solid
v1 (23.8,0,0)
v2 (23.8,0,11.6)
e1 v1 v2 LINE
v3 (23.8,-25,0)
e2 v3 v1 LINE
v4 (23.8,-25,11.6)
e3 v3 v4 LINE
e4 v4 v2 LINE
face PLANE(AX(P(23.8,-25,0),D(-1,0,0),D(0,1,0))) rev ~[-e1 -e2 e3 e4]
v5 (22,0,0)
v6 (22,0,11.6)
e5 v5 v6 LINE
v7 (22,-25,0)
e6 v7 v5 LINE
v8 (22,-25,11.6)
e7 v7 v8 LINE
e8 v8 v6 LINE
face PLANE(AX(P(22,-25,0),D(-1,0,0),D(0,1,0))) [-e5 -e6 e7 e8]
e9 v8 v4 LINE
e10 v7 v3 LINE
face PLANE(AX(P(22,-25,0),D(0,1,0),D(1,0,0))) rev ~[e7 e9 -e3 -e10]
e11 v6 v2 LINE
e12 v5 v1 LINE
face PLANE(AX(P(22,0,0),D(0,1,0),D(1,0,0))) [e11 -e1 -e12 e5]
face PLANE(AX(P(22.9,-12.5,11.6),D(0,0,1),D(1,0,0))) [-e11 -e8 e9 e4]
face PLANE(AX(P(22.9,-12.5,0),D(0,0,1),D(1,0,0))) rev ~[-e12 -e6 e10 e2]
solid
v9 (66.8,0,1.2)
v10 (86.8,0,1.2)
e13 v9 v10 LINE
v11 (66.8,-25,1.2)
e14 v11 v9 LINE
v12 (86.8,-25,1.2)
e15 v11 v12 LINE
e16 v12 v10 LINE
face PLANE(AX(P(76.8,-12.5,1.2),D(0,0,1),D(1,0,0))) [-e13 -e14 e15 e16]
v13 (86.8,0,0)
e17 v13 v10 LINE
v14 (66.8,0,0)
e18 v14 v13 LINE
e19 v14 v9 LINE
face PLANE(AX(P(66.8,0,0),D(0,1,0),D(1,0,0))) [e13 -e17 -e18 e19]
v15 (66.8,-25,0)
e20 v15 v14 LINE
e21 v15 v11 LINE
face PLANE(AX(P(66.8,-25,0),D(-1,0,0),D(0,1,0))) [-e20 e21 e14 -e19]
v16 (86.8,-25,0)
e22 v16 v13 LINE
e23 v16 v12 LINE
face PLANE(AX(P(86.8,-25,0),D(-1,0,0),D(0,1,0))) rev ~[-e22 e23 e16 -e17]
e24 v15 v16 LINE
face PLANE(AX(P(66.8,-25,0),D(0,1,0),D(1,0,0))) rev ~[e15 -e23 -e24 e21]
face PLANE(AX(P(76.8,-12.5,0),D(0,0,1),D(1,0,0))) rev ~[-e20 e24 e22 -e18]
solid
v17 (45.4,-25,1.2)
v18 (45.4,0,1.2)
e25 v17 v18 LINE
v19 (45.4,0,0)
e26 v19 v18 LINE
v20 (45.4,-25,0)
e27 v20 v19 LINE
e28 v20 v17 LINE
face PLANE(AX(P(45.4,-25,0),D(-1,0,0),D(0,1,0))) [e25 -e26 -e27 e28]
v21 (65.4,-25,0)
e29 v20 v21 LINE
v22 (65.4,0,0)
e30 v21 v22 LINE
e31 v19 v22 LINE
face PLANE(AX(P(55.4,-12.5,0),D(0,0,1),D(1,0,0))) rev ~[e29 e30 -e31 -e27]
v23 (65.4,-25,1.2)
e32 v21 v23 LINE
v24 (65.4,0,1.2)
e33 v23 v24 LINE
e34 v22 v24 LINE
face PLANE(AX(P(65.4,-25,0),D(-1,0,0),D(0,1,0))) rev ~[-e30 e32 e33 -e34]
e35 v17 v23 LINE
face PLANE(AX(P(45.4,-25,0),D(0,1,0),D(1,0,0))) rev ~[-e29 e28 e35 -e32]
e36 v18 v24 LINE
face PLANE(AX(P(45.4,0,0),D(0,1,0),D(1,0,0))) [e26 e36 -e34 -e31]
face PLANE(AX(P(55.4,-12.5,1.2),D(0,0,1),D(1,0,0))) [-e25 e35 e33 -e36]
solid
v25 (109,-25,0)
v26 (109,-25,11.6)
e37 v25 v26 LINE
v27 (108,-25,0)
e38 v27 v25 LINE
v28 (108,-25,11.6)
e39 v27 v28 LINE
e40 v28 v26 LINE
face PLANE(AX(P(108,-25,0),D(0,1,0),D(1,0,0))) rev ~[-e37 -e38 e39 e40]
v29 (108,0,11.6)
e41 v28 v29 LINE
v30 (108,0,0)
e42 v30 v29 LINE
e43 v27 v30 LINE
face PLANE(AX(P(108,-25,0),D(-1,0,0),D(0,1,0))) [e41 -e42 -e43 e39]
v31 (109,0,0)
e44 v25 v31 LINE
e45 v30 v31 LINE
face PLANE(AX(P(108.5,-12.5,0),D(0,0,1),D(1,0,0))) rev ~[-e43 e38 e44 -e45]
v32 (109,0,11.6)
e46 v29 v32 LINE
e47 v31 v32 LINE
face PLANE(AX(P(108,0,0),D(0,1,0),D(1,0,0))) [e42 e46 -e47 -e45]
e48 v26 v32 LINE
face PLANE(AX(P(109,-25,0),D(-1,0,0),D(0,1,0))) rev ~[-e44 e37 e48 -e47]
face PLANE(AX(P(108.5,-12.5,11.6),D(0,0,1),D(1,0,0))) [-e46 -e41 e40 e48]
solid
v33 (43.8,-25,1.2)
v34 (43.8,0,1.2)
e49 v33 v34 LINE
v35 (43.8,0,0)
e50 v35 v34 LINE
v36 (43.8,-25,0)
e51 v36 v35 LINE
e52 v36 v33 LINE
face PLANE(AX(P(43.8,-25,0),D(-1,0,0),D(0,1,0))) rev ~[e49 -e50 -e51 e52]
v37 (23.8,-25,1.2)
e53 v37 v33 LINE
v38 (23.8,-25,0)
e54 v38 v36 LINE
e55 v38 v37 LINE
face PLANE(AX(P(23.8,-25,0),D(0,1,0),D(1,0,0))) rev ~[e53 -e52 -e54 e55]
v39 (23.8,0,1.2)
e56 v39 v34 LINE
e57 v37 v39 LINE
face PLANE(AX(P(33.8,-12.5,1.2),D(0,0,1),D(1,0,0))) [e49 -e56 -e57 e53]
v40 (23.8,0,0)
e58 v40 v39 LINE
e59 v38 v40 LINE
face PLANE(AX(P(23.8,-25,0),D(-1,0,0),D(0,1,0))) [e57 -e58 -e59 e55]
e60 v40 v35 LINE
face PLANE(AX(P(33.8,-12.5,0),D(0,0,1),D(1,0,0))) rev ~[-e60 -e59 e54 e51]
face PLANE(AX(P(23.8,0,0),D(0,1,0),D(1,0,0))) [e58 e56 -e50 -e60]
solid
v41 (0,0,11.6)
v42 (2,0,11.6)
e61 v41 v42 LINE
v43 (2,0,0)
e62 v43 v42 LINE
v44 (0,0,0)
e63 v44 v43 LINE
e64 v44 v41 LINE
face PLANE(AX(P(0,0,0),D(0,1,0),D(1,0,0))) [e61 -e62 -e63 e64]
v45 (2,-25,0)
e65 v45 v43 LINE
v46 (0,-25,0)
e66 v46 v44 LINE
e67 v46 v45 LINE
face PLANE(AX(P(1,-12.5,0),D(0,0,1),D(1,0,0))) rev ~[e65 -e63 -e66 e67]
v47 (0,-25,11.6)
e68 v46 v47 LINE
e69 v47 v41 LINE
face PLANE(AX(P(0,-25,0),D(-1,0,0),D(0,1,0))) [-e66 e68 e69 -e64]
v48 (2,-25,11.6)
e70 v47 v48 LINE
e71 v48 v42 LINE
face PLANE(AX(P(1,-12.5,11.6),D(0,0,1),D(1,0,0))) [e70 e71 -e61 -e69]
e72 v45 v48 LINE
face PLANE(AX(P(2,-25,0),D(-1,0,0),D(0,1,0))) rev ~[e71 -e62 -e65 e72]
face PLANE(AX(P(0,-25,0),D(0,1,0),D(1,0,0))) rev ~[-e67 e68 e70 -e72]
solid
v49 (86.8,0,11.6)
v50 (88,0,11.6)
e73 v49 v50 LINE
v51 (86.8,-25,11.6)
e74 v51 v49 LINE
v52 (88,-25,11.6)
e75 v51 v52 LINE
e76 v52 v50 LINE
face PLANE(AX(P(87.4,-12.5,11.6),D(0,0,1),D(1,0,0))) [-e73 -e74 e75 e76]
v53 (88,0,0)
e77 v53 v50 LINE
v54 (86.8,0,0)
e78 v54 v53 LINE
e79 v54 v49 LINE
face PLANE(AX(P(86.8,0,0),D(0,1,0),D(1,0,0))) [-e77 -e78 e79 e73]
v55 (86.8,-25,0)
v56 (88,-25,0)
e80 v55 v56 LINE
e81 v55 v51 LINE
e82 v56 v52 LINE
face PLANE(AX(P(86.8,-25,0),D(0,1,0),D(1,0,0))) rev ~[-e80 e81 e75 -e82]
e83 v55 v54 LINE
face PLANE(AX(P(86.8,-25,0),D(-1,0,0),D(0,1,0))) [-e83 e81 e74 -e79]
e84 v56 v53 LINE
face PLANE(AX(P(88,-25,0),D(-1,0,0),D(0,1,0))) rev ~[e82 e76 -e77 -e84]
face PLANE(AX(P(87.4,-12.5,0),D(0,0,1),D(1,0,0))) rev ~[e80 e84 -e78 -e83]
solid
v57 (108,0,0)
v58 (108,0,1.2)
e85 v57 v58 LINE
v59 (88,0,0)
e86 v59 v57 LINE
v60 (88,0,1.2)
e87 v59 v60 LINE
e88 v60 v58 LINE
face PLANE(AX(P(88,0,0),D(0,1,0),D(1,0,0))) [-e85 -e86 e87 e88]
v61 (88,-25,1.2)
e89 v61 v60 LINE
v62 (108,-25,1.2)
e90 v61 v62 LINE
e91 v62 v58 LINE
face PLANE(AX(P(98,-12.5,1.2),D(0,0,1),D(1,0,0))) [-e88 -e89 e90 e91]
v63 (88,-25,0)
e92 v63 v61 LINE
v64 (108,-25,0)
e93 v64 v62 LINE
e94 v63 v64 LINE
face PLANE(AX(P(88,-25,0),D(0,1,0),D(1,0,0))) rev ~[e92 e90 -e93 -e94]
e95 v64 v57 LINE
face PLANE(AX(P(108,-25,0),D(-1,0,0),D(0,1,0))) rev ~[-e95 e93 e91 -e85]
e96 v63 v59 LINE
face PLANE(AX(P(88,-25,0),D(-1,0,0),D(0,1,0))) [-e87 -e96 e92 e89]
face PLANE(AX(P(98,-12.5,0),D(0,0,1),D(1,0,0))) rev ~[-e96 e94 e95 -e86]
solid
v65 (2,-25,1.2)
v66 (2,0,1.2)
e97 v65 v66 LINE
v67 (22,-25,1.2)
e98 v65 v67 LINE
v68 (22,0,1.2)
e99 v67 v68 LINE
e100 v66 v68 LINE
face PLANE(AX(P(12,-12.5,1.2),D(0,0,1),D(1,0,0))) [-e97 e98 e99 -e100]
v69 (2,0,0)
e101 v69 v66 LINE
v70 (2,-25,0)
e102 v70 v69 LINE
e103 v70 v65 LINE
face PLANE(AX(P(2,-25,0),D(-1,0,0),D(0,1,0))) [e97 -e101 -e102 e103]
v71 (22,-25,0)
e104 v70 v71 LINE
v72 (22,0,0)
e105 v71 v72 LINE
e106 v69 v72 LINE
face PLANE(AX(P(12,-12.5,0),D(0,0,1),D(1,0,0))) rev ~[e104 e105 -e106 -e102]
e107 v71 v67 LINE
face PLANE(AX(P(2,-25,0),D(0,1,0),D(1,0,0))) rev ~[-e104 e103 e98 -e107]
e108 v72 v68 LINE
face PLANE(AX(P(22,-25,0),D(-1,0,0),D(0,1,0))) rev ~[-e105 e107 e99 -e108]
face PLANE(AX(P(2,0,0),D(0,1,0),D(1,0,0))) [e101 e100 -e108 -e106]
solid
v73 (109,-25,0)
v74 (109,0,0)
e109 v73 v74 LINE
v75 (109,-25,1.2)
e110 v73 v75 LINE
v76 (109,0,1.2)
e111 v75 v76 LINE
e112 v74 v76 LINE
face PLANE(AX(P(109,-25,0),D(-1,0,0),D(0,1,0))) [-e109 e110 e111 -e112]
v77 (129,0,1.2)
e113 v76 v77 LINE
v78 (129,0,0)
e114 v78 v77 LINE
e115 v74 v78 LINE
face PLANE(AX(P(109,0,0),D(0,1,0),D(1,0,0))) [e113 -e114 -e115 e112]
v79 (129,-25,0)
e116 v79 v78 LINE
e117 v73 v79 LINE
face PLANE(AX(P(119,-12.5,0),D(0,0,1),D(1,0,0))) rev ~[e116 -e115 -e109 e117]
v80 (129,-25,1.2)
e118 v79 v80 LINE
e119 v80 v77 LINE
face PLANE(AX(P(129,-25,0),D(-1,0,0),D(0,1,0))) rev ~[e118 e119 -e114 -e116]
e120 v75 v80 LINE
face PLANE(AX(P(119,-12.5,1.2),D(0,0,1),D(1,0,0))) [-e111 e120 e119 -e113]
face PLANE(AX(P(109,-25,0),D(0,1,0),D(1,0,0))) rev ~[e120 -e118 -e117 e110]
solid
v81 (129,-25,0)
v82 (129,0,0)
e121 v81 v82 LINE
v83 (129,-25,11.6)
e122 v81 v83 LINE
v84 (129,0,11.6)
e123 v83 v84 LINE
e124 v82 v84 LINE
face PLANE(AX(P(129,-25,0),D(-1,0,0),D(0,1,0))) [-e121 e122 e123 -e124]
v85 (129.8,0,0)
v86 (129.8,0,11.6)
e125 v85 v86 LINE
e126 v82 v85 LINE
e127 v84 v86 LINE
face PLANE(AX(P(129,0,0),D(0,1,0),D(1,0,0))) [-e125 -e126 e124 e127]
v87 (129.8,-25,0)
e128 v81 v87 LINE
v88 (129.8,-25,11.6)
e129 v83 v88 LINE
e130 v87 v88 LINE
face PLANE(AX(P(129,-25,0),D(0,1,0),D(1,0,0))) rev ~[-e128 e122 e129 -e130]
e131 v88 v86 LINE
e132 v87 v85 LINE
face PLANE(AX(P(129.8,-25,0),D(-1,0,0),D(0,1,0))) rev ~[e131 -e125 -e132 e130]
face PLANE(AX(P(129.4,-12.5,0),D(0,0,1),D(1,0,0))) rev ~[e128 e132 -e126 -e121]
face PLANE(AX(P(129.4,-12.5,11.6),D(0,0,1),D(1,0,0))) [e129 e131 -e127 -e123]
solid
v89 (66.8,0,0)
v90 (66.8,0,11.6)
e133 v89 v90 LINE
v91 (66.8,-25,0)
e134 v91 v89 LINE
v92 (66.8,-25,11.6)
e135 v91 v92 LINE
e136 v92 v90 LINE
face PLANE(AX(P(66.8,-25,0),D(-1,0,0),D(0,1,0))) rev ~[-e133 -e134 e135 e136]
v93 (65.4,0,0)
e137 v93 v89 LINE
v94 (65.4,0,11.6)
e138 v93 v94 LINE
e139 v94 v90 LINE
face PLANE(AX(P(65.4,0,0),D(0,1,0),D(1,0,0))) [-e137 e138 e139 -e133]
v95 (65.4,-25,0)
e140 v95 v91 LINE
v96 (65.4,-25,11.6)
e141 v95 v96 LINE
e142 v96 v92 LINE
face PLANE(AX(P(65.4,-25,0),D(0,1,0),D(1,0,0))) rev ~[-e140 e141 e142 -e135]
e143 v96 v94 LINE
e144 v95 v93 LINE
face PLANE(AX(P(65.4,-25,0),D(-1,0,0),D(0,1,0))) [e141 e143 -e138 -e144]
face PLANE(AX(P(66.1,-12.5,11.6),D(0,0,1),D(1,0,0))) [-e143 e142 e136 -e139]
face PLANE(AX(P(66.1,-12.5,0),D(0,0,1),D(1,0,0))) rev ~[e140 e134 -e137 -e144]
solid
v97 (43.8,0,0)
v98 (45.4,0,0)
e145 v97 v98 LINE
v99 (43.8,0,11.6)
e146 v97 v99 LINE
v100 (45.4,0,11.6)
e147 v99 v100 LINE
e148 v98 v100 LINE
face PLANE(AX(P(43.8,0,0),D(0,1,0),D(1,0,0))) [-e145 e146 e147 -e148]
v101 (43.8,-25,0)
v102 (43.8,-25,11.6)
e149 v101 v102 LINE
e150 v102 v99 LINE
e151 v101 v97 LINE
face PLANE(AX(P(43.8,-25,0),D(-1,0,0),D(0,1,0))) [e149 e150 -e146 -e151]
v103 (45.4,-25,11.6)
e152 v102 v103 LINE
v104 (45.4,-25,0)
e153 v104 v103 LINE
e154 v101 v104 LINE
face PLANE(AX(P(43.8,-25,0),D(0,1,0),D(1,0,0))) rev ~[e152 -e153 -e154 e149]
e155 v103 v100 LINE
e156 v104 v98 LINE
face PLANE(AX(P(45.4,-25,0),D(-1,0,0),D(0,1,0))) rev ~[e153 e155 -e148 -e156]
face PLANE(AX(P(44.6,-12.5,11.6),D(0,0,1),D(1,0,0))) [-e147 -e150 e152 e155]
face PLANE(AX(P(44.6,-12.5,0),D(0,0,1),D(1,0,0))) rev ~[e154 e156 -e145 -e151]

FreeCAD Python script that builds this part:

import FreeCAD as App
import Part
import Sketcher
from FreeCAD import Vector

doc = App.newDocument("Part")
body = doc.addObject("PartDesign::Body", "Body")
body.AllowCompound = True

# Sketch on XY plane
sketch1 = doc.addObject("Sketcher::SketchObject", "Sketch")
body.addObject(sketch1)
sketch1.AttachmentSupport = (doc.XY_Plane, [""])
sketch1.MapMode = "FlatFace"
sketch1.addGeometry([
    Part.LineSegment(Vector(0, 0, 0), Vector(0, -25, 0)),  # 0
    Part.LineSegment(Vector(0, -25, 0), Vector(2, -25, 0)),  # 1
    Part.LineSegment(Vector(2, -25, 0), Vector(2, 0, 0)),  # 2
    Part.LineSegment(Vector(2, 0, 0), Vector(0, 0, 0)),  # 3
    Part.LineSegment(Vector(22, 0, 0), Vector(22, -25, 0)),  # 4
    Part.LineSegment(Vector(22, -25, 0), Vector(23.8, -25, 0)),  # 5
    Part.LineSegment(Vector(23.8, -25, 0), Vector(23.8, 0, 0)),  # 6
    Part.LineSegment(Vector(23.8, 0, 0), Vector(22, 0, 0)),  # 7
    Part.LineSegment(Vector(43.8, 0, 0), Vector(43.8, -25, 0)),  # 8
    Part.LineSegment(Vector(43.8, -25, 0), Vector(45.4, -25, 0)),  # 9
    Part.LineSegment(Vector(45.4, -25, 0), Vector(45.4, 0, 0)),  # 10
    Part.LineSegment(Vector(45.4, 0, 0), Vector(43.8, 0, 0)),  # 11
    Part.LineSegment(Vector(65.4, 0, 0), Vector(65.4, -25, 0)),  # 12
    Part.LineSegment(Vector(65.4, -25, 0), Vector(66.8, -25, 0)),  # 13
    Part.LineSegment(Vector(66.8, -25, 0), Vector(66.8, 0, 0)),  # 14
    Part.LineSegment(Vector(66.8, 0, 0), Vector(65.4, 0, 0)),  # 15
    Part.LineSegment(Vector(86.8, 0, 0), Vector(86.8, -25, 0)),  # 16
    Part.LineSegment(Vector(86.8, -25, 0), Vector(88, -25, 0)),  # 17
    Part.LineSegment(Vector(88, -25, 0), Vector(88, 0, 0)),  # 18
    Part.LineSegment(Vector(88, 0, 0), Vector(86.8, 0, 0)),  # 19
    Part.LineSegment(Vector(108, 0, 0), Vector(108, -25, 0)),  # 20
    Part.LineSegment(Vector(108, -25, 0), Vector(109, -25, 0)),  # 21
    Part.LineSegment(Vector(109, -25, 0), Vector(109, 0, 0)),  # 22
    Part.LineSegment(Vector(109, 0, 0), Vector(108, 0, 0)),  # 23
    Part.LineSegment(Vector(129, 0, 0), Vector(129, -25, 0)),  # 24
    Part.LineSegment(Vector(129, -25, 0), Vector(129.8, -25, 0)),  # 25
    Part.LineSegment(Vector(129.8, -25, 0), Vector(129.8, 0, 0)),  # 26
    Part.LineSegment(Vector(129.8, 0, 0), Vector(129, 0, 0)),  # 27
], False)
sketch1.addConstraint([
    Sketcher.Constraint("Coincident", 0, 2, 1, 1),
    Sketcher.Constraint("Coincident", 1, 2, 2, 1),
    Sketcher.Constraint("Coincident", 2, 2, 3, 1),
    Sketcher.Constraint("Coincident", 3, 2, 0, 1),
    Sketcher.Constraint("Coincident", 4, 2, 5, 1),
    Sketcher.Constraint("Coincident", 5, 2, 6, 1),
    Sketcher.Constraint("Coincident", 6, 2, 7, 1),
    Sketcher.Constraint("Coincident", 7, 2, 4, 1),
    Sketcher.Constraint("Coincident", 8, 2, 9, 1),
    Sketcher.Constraint("Coincident", 9, 2, 10, 1),
    Sketcher.Constraint("Coincident", 10, 2, 11, 1),
    Sketcher.Constraint("Coincident", 11, 2, 8, 1),
    Sketcher.Constraint("Coincident", 12, 2, 13, 1),
    Sketcher.Constraint("Coincident", 13, 2, 14, 1),
    Sketcher.Constraint("Coincident", 14, 2, 15, 1),
    Sketcher.Constraint("Coincident", 15, 2, 12, 1),
    Sketcher.Constraint("Coincident", 16, 2, 17, 1),
    Sketcher.Constraint("Coincident", 17, 2, 18, 1),
    Sketcher.Constraint("Coincident", 18, 2, 19, 1),
    Sketcher.Constraint("Coincident", 19, 2, 16, 1),
    Sketcher.Constraint("Coincident", 20, 2, 21, 1),
    Sketcher.Constraint("Coincident", 21, 2, 22, 1),
    Sketcher.Constraint("Coincident", 22, 2, 23, 1),
    Sketcher.Constraint("Coincident", 23, 2, 20, 1),
    Sketcher.Constraint("Coincident", 24, 2, 25, 1),
    Sketcher.Constraint("Coincident", 25, 2, 26, 1),
    Sketcher.Constraint("Coincident", 26, 2, 27, 1),
    Sketcher.Constraint("Coincident", 27, 2, 24, 1),
    Sketcher.Constraint("Vertical", 0),
    Sketcher.Constraint("Horizontal", 1),
    Sketcher.Constraint("Vertical", 2),
    Sketcher.Constraint("Horizontal", 3),
    Sketcher.Constraint("Vertical", 4),
    Sketcher.Constraint("Horizontal", 5),
    Sketcher.Constraint("Vertical", 6),
    Sketcher.Constraint("Horizontal", 7),
    Sketcher.Constraint("Vertical", 8),
    Sketcher.Constraint("Horizontal", 9),
    Sketcher.Constraint("Vertical", 10),
    Sketcher.Constraint("Horizontal", 11),
    Sketcher.Constraint("Vertical", 12),
    Sketcher.Constraint("Horizontal", 13),
    Sketcher.Constraint("Vertical", 14),
    Sketcher.Constraint("Horizontal", 15),
    Sketcher.Constraint("Vertical", 16),
    Sketcher.Constraint("Horizontal", 17),
    Sketcher.Constraint("Vertical", 18),
    Sketcher.Constraint("Horizontal", 19),
    Sketcher.Constraint("Vertical", 20),
    Sketcher.Constraint("Horizontal", 21),
    Sketcher.Constraint("Vertical", 22),
    Sketcher.Constraint("Horizontal", 23),
    Sketcher.Constraint("Vertical", 24),
    Sketcher.Constraint("Horizontal", 25),
    Sketcher.Constraint("Vertical", 26),
    Sketcher.Constraint("Horizontal", 27),
    Sketcher.Constraint("Coincident", 3, 2, -1, 1),
    Sketcher.Constraint("PointOnObject", 6, 2, -1),
    Sketcher.Constraint("PointOnObject", 10, 2, -1),
    Sketcher.Constraint("PointOnObject", 14, 2, -1),
    Sketcher.Constraint("PointOnObject", 18, 2, -1),
    Sketcher.Constraint("PointOnObject", 22, 2, -1),
    Sketcher.Constraint("PointOnObject", 26, 2, -1),
    Sketcher.Constraint("Horizontal", 1, 2, 4, 2),
    Sketcher.Constraint("Horizontal", 5, 2, 8, 2),
    Sketcher.Constraint("Horizontal", 9, 2, 12, 2),
    Sketcher.Constraint("Horizontal", 13, 2, 16, 2),
    Sketcher.Constraint("Horizontal", 17, 2, 20, 2),
    Sketcher.Constraint("Horizontal", 21, 2, 24, 2),
    Sketcher.Constraint("DistanceX", 1, 1, 1, 2, 2.0),
    Sketcher.Constraint("DistanceX", 21, 1, 21, 2, 1.0),
    Sketcher.Constraint("DistanceY", 0, 2, 0, 1, 25.0),
    Sketcher.Constraint("DistanceX", 5, 1, 5, 2, 1.8),
    Sketcher.Constraint("DistanceX", 9, 1, 9, 2, 1.6),
    Sketcher.Constraint("DistanceX", 13, 1, 13, 2, 1.4),
    Sketcher.Constraint("DistanceX", 17, 1, 17, 2, 1.2),
    Sketcher.Constraint("DistanceX", 25, 1, 25, 2, 0.8),
    Sketcher.Constraint("DistanceX", -1, 1, 4, 2, 22.0),
    Sketcher.Constraint("DistanceX", -1, 1, 17, 2, 88.0),
    Sketcher.Constraint("DistanceX", -1, 1, 20, 2, 108.0),
    Sketcher.Constraint("DistanceX", -1, 1, 24, 2, 129.0),
    Sketcher.Constraint("DistanceX", 5, 2, 8, 2, 20.0),
    Sketcher.Constraint("DistanceX", 9, 2, 12, 2, 20.0),
])
pad1 = doc.addObject("PartDesign::Pad", "Pad")
body.addObject(pad1)
pad1.Profile = sketch1
pad1.Length = 11.6
body2 = doc.addObject("PartDesign::Body", "Body001")
body2.AllowCompound = True

# Sketch on XY plane
sketch2 = doc.addObject("Sketcher::SketchObject", "Sketch001")
body2.addObject(sketch2)
sketch2.AttachmentSupport = (doc.getObject("XY_Plane001"), [""])
sketch2.MapMode = "FlatFace"
sketch2.addGeometry([
    Part.LineSegment(Vector(2, 0, 0), Vector(2, -25, 0)),  # 0
    Part.LineSegment(Vector(2, -25, 0), Vector(22, -25, 0)),  # 1
    Part.LineSegment(Vector(22, -25, 0), Vector(22, 0, 0)),  # 2
    Part.LineSegment(Vector(22, 0, 0), Vector(2, 0, 0)),  # 3
    Part.LineSegment(Vector(24, 0, 0), Vector(24, -25, 0)),  # 4
    Part.LineSegment(Vector(24, -25, 0), Vector(44, -25, 0)),  # 5
    Part.LineSegment(Vector(44, -25, 0), Vector(44, 0, 0)),  # 6
    Part.LineSegment(Vector(44, 0, 0), Vector(24, 0, 0)),  # 7
    Part.LineSegment(Vector(45, 0, 0), Vector(45, -25, 0)),  # 8
    Part.LineSegment(Vector(45, -25, 0), Vector(65, -25, 0)),  # 9
    Part.LineSegment(Vector(65, -25, 0), Vector(65, 0, 0)),  # 10
    Part.LineSegment(Vector(65, 0, 0), Vector(45, 0, 0)),  # 11
    Part.LineSegment(Vector(67, 0, 0), Vector(67, -25, 0)),  # 12
    Part.LineSegment(Vector(67, -25, 0), Vector(87, -25, 0)),  # 13
    Part.LineSegment(Vector(87, -25, 0), Vector(87, 0, 0)),  # 14
    Part.LineSegment(Vector(87, 0, 0), Vector(67, 0, 0)),  # 15
    Part.LineSegment(Vector(88, 0, 0), Vector(88, -25, 0)),  # 16
    Part.LineSegment(Vector(88, -25, 0), Vector(108, -25, 0)),  # 17
    Part.LineSegment(Vector(108, -25, 0), Vector(108, 0, 0)),  # 18
    Part.LineSegment(Vector(108, 0, 0), Vector(88, 0, 0)),  # 19
    Part.LineSegment(Vector(109, 0, 0), Vector(109, -25, 0)),  # 20
    Part.LineSegment(Vector(109, -25, 0), Vector(129, -25, 0)),  # 21
    Part.LineSegment(Vector(129, -25, 0), Vector(129, 0, 0)),  # 22
    Part.LineSegment(Vector(129, 0, 0), Vector(109, 0, 0)),  # 23
], False)
sketch2.addConstraint([
    Sketcher.Constraint("Coincident", 0, 2, 1, 1),
    Sketcher.Constraint("Coincident", 1, 2, 2, 1),
    Sketcher.Constraint("Coincident", 2, 2, 3, 1),
    Sketcher.Constraint("Coincident", 3, 2, 0, 1),
    Sketcher.Constraint("Coincident", 4, 2, 5, 1),
    Sketcher.Constraint("Coincident", 5, 2, 6, 1),
    Sketcher.Constraint("Coincident", 6, 2, 7, 1),
    Sketcher.Constraint("Coincident", 7, 2, 4, 1),
    Sketcher.Constraint("Coincident", 8, 2, 9, 1),
    Sketcher.Constraint("Coincident", 9, 2, 10, 1),
    Sketcher.Constraint("Coincident", 10, 2, 11, 1),
    Sketcher.Constraint("Coincident", 11, 2, 8, 1),
    Sketcher.Constraint("Coincident", 12, 2, 13, 1),
    Sketcher.Constraint("Coincident", 13, 2, 14, 1),
    Sketcher.Constraint("Coincident", 14, 2, 15, 1),
    Sketcher.Constraint("Coincident", 15, 2, 12, 1),
    Sketcher.Constraint("Coincident", 16, 2, 17, 1),
    Sketcher.Constraint("Coincident", 17, 2, 18, 1),
    Sketcher.Constraint("Coincident", 18, 2, 19, 1),
    Sketcher.Constraint("Coincident", 19, 2, 16, 1),
    Sketcher.Constraint("Coincident", 20, 2, 21, 1),
    Sketcher.Constraint("Coincident", 21, 2, 22, 1),
    Sketcher.Constraint("Coincident", 22, 2, 23, 1),
    Sketcher.Constraint("Coincident", 23, 2, 20, 1),
    Sketcher.Constraint("Vertical", 0),
    Sketcher.Constraint("Horizontal", 1),
    Sketcher.Constraint("Vertical", 2),
    Sketcher.Constraint("Horizontal", 3),
    Sketcher.Constraint("Vertical", 4),
    Sketcher.Constraint("Horizontal", 5),
    Sketcher.Constraint("Vertical", 6),
    Sketcher.Constraint("Horizontal", 7),
    Sketcher.Constraint("Vertical", 8),
    Sketcher.Constraint("Horizontal", 9),
    Sketcher.Constraint("Vertical", 10),
    Sketcher.Constraint("Horizontal", 11),
    Sketcher.Constraint("Vertical", 12),
    Sketcher.Constraint("Horizontal", 13),
    Sketcher.Constraint("Vertical", 14),
    Sketcher.Constraint("Horizontal", 15),
    Sketcher.Constraint("Vertical", 16),
    Sketcher.Constraint("Horizontal", 17),
    Sketcher.Constraint("Vertical", 18),
    Sketcher.Constraint("Horizontal", 19),
    Sketcher.Constraint("Vertical", 20),
    Sketcher.Constraint("Horizontal", 21),
    Sketcher.Constraint("Vertical", 22),
    Sketcher.Constraint("Horizontal", 23),
    Sketcher.Constraint("PointOnObject", 2, 2, -1),
    Sketcher.Constraint("PointOnObject", 6, 2, -1),
    Sketcher.Constraint("PointOnObject", 10, 2, -1),
    Sketcher.Constraint("PointOnObject", 14, 2, -1),
    Sketcher.Constraint("PointOnObject", 18, 2, -1),
    Sketcher.Constraint("PointOnObject", 22, 2, -1),
    Sketcher.Constraint("Horizontal", 1, 2, 4, 2),
    Sketcher.Constraint("Horizontal", 5, 2, 8, 2),
    Sketcher.Constraint("Horizontal", 9, 2, 12, 2),
    Sketcher.Constraint("Horizontal", 13, 2, 16, 2),
    Sketcher.Constraint("Horizontal", 17, 2, 20, 2),
    Sketcher.Constraint("Equal", 3, 5),
    Sketcher.Constraint("Equal", 7, 9),
    Sketcher.Constraint("Equal", 11, 13),
    Sketcher.Constraint("Equal", 15, 17),
    Sketcher.Constraint("Equal", 19, 21),
    Sketcher.Constraint("DistanceX", 1, 1, 1, 2, 20.0),
    Sketcher.Constraint("DistanceY", 0, 2, 0, 1, 25.0),
    Sketcher.Constraint("DistanceX", -1, 1, 0, 2, 2.0),
    Sketcher.Constraint("DistanceX", -1, 1, 16, 2, 88.0),
    Sketcher.Constraint("DistanceX", -1, 1, 20, 2, 109.0),
    Sketcher.Constraint("DistanceX", 5, 2, 12, 2, 23.0),
    Sketcher.Constraint("DistanceX", -1, 1, 4, 2, 23.8),
    Sketcher.Constraint("DistanceX", -1, 1, 8, 2, 45.4),
])
pad2 = doc.addObject("PartDesign::Pad", "Pad001")
body2.addObject(pad2)
pad2.Profile = sketch2
pad2.Length = 1.2

doc.recompute()
